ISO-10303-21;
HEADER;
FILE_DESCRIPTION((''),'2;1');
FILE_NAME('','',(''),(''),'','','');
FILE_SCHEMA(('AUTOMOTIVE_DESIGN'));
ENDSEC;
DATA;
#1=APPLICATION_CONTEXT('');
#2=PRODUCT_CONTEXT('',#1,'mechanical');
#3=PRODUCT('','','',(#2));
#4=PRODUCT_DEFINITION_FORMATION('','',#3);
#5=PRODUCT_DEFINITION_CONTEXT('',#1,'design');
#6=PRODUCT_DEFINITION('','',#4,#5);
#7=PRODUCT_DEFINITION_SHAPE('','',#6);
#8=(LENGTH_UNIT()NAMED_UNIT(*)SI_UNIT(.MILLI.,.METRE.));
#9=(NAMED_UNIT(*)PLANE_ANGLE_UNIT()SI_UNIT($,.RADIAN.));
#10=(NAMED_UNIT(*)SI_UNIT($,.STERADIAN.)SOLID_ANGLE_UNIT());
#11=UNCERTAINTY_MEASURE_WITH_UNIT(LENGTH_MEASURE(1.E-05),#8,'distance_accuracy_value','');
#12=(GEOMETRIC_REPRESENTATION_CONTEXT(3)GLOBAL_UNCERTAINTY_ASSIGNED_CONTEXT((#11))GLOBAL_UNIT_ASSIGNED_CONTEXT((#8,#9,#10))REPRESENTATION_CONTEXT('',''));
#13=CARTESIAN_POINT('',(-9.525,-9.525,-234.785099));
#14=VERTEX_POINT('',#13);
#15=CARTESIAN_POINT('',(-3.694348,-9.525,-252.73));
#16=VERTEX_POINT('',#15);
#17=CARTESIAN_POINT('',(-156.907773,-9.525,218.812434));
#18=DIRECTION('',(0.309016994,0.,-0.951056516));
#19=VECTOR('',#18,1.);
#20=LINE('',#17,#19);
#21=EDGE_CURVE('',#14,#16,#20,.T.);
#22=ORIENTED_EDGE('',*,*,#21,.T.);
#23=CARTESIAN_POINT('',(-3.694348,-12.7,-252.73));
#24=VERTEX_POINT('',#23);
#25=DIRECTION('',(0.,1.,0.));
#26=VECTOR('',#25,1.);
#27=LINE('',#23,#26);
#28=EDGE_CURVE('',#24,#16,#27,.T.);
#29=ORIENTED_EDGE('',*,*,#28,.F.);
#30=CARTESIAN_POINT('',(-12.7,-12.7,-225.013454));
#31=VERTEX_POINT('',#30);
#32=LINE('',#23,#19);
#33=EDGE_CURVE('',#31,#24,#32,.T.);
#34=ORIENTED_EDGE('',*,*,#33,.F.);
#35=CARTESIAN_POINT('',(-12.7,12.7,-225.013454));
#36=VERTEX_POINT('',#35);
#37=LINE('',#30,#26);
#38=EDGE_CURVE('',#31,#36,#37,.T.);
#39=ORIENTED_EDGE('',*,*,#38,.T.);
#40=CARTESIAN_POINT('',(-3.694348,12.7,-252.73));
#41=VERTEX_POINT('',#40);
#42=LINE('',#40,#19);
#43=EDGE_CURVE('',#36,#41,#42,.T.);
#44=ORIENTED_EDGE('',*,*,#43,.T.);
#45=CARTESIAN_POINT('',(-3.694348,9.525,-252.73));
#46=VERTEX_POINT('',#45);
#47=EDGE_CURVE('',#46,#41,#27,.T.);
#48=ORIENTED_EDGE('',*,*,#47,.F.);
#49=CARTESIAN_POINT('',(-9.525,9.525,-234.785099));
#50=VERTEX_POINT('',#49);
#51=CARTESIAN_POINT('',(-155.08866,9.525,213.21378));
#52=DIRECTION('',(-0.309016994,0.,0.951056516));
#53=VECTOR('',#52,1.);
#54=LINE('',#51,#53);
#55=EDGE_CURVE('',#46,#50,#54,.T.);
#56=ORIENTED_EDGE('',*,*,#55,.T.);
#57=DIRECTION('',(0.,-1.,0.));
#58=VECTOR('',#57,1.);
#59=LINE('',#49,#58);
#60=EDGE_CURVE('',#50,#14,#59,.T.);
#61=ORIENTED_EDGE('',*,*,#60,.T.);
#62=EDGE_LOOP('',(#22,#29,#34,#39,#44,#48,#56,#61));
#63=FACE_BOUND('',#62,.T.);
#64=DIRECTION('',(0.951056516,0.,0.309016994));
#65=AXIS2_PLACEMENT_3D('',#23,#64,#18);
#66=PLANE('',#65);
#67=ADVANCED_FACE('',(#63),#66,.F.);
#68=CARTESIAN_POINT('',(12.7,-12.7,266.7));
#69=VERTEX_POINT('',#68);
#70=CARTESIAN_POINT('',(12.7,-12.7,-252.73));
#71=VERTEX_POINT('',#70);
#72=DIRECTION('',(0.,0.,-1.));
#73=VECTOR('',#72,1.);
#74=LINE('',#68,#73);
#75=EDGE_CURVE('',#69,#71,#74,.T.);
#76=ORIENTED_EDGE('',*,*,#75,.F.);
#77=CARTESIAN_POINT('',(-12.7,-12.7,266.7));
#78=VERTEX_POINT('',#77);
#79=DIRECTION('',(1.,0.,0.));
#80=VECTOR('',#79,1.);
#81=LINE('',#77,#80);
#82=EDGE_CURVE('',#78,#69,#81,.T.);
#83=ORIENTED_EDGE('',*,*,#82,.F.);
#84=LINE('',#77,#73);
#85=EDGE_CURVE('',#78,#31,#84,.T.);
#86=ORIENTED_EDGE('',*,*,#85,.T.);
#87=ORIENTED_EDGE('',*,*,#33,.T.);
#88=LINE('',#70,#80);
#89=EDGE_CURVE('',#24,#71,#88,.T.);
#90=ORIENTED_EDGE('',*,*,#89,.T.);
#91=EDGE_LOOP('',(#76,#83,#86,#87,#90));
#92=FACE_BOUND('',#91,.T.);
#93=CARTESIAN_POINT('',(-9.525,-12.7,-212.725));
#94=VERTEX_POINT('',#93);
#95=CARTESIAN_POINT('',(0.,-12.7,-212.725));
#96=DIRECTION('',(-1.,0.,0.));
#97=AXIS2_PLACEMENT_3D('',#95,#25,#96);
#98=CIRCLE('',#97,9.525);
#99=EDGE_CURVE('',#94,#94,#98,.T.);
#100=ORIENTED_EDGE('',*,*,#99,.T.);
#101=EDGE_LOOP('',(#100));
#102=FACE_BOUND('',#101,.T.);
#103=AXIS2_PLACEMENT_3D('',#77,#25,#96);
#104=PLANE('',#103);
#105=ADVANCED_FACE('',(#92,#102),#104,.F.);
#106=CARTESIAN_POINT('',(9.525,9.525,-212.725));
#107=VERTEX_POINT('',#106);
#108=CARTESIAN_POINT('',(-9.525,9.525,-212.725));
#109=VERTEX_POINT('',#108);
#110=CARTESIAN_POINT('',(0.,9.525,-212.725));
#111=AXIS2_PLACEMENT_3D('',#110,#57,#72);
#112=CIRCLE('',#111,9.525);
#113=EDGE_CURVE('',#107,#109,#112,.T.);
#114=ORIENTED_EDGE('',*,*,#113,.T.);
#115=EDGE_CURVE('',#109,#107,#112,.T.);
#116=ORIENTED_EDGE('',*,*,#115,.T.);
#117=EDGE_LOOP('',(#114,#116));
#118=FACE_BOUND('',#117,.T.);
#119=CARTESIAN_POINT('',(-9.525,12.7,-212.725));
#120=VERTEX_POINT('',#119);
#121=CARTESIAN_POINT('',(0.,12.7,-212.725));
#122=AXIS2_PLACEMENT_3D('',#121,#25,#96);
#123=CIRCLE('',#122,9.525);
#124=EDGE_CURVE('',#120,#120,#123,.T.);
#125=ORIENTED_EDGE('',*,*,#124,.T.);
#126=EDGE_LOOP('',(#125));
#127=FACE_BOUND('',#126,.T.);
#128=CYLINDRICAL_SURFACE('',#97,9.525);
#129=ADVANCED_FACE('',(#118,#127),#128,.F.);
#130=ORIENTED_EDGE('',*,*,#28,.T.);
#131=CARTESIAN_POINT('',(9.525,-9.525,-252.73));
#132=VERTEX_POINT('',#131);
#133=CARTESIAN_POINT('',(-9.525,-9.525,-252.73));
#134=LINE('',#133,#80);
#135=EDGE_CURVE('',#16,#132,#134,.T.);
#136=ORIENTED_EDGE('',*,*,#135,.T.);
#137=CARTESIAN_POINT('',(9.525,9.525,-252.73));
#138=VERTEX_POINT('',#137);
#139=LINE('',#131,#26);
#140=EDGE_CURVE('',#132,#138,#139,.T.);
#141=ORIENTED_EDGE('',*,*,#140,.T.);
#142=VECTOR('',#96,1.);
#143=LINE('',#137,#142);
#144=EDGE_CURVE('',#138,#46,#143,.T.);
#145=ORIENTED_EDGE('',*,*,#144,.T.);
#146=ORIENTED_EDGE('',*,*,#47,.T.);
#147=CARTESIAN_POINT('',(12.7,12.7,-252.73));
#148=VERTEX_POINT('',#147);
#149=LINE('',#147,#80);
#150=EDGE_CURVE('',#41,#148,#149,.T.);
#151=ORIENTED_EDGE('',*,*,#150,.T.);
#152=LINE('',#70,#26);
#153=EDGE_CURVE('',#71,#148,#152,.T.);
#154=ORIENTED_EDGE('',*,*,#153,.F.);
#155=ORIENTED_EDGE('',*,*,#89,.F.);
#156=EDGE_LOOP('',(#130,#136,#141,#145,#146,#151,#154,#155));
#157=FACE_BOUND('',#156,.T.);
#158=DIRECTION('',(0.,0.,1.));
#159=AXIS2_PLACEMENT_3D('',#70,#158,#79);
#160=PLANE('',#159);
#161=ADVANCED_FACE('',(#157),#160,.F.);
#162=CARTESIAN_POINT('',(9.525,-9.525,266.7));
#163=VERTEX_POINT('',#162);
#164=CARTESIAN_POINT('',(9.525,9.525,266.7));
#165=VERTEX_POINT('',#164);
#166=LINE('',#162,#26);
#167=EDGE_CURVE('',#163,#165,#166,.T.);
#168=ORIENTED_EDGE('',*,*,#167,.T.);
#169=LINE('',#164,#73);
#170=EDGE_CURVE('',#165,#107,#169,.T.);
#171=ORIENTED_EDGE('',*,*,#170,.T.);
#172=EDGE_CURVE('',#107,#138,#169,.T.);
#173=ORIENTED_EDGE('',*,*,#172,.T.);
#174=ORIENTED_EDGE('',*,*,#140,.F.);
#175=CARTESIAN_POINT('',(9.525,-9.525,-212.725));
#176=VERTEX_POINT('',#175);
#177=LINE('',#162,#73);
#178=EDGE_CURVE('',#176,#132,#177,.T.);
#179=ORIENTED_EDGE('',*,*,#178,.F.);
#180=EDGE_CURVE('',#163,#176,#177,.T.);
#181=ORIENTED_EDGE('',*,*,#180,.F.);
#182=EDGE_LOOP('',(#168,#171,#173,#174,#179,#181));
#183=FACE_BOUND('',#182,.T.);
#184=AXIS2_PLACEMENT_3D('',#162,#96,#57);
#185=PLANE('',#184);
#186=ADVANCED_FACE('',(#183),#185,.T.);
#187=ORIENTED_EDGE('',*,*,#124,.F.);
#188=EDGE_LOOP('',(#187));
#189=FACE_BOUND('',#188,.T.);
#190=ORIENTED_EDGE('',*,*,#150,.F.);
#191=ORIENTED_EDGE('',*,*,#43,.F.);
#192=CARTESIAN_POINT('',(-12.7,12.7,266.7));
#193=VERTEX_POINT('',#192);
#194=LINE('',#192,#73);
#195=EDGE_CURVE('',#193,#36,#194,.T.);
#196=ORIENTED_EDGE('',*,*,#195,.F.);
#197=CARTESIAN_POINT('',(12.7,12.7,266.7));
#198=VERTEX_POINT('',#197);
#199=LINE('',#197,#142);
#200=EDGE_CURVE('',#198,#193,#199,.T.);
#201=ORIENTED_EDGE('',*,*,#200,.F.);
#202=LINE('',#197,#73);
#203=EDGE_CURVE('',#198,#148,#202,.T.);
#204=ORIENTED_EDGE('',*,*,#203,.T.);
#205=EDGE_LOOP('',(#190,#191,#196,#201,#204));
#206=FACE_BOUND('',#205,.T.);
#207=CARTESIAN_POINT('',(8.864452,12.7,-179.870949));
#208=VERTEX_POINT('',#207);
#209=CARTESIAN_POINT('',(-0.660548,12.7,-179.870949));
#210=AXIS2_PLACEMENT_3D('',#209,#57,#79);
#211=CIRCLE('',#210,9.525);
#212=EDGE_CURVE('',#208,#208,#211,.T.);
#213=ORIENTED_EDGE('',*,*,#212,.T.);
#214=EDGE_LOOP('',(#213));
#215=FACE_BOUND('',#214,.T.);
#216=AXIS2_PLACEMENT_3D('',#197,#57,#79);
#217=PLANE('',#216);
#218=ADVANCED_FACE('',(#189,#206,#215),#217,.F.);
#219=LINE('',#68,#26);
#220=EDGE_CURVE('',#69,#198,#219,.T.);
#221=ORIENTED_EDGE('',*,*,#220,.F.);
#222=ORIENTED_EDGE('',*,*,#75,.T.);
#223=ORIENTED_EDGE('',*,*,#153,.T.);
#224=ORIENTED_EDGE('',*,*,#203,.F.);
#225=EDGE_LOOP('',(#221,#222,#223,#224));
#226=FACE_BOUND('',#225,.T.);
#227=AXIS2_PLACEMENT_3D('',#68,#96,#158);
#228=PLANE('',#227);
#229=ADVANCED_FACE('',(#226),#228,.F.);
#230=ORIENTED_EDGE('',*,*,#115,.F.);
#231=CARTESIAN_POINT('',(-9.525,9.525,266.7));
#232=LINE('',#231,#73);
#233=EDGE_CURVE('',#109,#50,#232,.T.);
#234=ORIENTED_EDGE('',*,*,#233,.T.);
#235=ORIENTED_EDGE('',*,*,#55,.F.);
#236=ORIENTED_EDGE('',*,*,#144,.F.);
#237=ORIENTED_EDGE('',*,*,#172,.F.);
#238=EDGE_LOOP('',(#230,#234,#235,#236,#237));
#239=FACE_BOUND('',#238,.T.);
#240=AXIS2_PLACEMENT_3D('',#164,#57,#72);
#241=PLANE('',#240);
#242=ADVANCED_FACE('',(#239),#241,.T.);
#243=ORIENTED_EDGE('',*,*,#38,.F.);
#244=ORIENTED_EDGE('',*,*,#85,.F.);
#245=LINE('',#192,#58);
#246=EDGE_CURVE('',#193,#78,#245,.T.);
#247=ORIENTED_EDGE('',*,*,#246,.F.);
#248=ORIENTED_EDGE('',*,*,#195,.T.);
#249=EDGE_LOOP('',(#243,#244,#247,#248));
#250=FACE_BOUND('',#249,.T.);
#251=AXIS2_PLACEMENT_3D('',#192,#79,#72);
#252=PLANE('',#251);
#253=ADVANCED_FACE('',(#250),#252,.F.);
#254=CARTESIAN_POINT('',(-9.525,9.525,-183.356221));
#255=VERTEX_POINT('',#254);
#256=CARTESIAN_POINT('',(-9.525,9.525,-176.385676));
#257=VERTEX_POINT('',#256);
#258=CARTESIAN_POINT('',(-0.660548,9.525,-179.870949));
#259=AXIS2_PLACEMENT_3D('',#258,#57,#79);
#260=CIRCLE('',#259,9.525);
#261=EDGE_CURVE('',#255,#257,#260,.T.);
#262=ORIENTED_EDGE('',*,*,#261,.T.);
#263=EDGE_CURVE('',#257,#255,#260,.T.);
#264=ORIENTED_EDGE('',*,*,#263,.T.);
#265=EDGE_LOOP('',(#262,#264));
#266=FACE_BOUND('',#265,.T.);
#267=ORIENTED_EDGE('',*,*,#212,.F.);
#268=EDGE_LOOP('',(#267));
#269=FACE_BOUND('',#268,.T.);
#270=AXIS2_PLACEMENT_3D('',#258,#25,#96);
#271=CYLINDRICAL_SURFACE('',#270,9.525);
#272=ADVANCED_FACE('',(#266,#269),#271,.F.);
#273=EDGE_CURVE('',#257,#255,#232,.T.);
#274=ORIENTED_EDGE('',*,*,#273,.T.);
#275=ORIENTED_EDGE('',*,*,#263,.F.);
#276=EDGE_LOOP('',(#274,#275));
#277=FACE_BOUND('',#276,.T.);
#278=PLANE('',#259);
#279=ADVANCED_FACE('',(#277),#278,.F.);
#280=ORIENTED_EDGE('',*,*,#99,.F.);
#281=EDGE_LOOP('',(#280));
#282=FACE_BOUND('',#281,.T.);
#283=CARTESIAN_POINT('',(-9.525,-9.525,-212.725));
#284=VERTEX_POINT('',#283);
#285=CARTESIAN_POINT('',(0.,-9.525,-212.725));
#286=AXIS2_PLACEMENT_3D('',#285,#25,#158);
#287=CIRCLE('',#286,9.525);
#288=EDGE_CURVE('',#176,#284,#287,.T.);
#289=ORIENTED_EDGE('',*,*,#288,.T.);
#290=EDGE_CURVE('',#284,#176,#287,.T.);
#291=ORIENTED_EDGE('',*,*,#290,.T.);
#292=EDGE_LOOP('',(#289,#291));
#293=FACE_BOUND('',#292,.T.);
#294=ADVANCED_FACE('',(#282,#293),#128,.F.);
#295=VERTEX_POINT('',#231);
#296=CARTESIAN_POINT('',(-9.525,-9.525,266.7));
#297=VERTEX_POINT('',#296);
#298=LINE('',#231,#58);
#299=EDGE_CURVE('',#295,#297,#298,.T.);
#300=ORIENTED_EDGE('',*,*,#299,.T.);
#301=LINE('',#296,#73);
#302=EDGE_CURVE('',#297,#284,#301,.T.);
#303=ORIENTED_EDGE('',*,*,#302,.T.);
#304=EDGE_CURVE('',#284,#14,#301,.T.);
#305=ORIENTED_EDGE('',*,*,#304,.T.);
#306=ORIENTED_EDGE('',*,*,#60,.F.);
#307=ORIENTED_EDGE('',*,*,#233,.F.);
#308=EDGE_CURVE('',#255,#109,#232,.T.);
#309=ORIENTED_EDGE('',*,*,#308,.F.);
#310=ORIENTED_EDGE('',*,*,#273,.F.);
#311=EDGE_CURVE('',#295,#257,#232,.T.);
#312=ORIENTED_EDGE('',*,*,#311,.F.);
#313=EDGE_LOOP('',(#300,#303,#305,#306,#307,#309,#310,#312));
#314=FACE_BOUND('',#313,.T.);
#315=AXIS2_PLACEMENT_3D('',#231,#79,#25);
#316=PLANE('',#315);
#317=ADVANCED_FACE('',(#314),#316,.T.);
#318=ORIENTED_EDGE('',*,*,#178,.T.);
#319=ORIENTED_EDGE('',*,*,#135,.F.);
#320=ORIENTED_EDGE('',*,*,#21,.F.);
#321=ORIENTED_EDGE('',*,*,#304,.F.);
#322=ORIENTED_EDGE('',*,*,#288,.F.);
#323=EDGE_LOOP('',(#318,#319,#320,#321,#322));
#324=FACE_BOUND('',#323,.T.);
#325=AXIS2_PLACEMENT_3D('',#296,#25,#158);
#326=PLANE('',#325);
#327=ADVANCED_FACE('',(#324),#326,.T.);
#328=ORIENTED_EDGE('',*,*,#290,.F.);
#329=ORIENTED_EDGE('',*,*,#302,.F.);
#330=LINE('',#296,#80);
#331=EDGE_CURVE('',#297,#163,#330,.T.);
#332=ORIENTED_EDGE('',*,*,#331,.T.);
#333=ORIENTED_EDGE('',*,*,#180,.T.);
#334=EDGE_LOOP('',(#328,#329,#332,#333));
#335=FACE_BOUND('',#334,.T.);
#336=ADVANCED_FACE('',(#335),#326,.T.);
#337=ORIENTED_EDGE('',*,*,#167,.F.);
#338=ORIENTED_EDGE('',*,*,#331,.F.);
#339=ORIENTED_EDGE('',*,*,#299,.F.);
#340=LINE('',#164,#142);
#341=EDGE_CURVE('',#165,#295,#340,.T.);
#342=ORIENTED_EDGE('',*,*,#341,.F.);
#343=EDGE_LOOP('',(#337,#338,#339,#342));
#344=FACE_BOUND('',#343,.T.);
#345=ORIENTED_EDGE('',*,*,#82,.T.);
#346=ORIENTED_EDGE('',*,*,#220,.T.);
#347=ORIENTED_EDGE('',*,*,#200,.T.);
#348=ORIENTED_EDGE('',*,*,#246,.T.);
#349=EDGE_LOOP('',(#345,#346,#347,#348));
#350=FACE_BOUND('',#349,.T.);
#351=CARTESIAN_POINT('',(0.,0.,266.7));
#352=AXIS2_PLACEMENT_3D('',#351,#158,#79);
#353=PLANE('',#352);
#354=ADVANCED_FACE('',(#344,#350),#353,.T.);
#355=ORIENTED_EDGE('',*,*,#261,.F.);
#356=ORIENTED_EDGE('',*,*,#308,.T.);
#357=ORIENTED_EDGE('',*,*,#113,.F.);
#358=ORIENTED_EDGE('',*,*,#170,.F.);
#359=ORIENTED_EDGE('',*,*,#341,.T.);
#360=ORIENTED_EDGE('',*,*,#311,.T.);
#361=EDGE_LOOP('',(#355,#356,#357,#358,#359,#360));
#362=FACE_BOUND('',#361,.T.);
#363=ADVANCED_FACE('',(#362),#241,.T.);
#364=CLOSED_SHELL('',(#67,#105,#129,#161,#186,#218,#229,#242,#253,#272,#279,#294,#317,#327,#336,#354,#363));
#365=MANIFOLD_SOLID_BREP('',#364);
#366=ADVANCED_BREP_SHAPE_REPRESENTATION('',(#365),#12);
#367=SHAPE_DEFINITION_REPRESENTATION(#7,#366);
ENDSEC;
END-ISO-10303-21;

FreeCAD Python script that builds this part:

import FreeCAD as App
import Part
import Sketcher
Q = App.Units.Quantity


def add_polygon(sketch, points):
    """Adds a closed chain of lines whose ends are joined by coincident constraints."""
    first, n = sketch.GeometryCount, len(points)
    for a, b in zip(points, points[1:] + points[:1]):
        sketch.addGeometry(Part.LineSegment(App.Vector(*a, 0), App.Vector(*b, 0)), False)
    for i in range(n):
        sketch.addConstraint(Sketcher.Constraint("Coincident", first + i, 2, first + (i + 1) % n, 1))

doc = App.newDocument("Part")
body = doc.addObject("PartDesign::Body", "Body")

sketch1 = body.newObject("Sketcher::SketchObject", "Sketch")
sketch1.AttachmentSupport = (doc.getObject("XY_Plane"), [""])
sketch1.MapMode = "FlatFace"
add_polygon(sketch1, [(-12.7, 12.7), (-12.7, -12.7), (12.7, -12.7), (12.7, 12.7)])
add_polygon(sketch1, [(9.525, -9.525), (-9.525, -9.525), (-9.525, 9.525), (9.525, 9.525)])
sketch1.addConstraint([
    Sketcher.Constraint("Vertical", 0),
    Sketcher.Constraint("Horizontal", 1),
    Sketcher.Constraint("Vertical", 2),
    Sketcher.Constraint("Horizontal", 3),
    Sketcher.Constraint("Horizontal", 4),
    Sketcher.Constraint("Vertical", 5),
    Sketcher.Constraint("Horizontal", 6),
    Sketcher.Constraint("Vertical", 7),
    Sketcher.Constraint("Symmetric", 0, 2, 2, 2, -1, 1),
    Sketcher.Constraint("Symmetric", 4, 2, 6, 2, -1, 1),
    Sketcher.Constraint("Equal", 3, 0),
    Sketcher.Constraint("Equal", 6, 5),
    Sketcher.Constraint("DistanceX", 1, 1, 1, 2, Q("1 in")),
    Sketcher.Constraint("DistanceX", 4, 2, 4, 1, Q("0.75 in")),
])
pad1 = body.newObject("PartDesign::Pad", "Pad")
pad1.Profile = sketch1
pad1.Type = "TwoLengths"
pad1.Length = Q("10.5 in")
pad1.Length2 = Q("10.5 in")

sketch2 = body.newObject("Sketcher::SketchObject", "Sketch001")
sketch2.AttachmentSupport = (doc.getObject("XZ_Plane"), [""])
sketch2.MapMode = "FlatFace"
sketch2.AttachmentOffset = App.Placement(App.Vector(0, 0, -0.5 * 25.4), App.Rotation())
sketch2.addGeometry(Part.Circle(App.Vector(0, -212.725, 0), App.Vector(0, 0, 1), 9.525), False)
add_polygon(sketch2, [(-12.7, -266.7), (-12.7, -225.013454), (-3.694348, -252.73), (12.7, -252.73), (12.7, -266.7)])
sketch2.addConstraint([
    Sketcher.Constraint("Vertical", 1),
    Sketcher.Constraint("Horizontal", 3),
    Sketcher.Constraint("Vertical", 4),
    Sketcher.Constraint("Horizontal", 5),
    Sketcher.Constraint("PointOnObject", 0, 3, -2),
    Sketcher.Constraint("Diameter", 0, Q("0.75 in")),
    Sketcher.Constraint("DistanceX", 5, 2, 5, 1, Q("1 in")),
    Sketcher.Constraint("Angle", 2, Q("-72 deg")),
    Sketcher.Constraint("DistanceY", 4, 2, 4, 1, Q("0.55 in")),
    Sketcher.Constraint("DistanceX", 1, 2, -1, 1, Q("0.5 in")),
    Sketcher.Constraint("DistanceY", 4, 2, -1, 1, Q("10.5 in")),
    Sketcher.Constraint("DistanceY", 0, 3, -1, 1, Q("8.375 in")),
    Sketcher.Constraint("Distance", 2, 29.142902),
])
pocket1 = body.newObject("PartDesign::Pocket", "Pocket")
pocket1.Profile = sketch2
pocket1.Length = Q("1 in")
pocket1.Reversed = True

sketch3 = body.newObject("Sketcher::SketchObject", "Sketch002")
sketch3.AttachmentSupport = (doc.getObject("XZ_Plane"), [""])
sketch3.MapMode = "FlatFace"
sketch3.AttachmentOffset = App.Placement(App.Vector(0, 0, -0.5 * 25.4), App.Rotation())
sketch3.addGeometry(Part.Circle(App.Vector(-0.660548, -179.870949, 0), App.Vector(0, 0, 1), 9.525), False)
sketch3.addConstraint([
    Sketcher.Constraint("Diameter", 0, Q("0.75 in")),
    Sketcher.Constraint("DistanceX", 0, 3, -1, 1, 0.660548),
    Sketcher.Constraint("DistanceY", 0, 3, -1, 1, 179.870949),
])
pocket2 = body.newObject("PartDesign::Pocket", "Pocket001")
pocket2.Profile = sketch3
pocket2.Length = Q("0.125 in")
pocket2.Reversed = True

doc.recompute()
